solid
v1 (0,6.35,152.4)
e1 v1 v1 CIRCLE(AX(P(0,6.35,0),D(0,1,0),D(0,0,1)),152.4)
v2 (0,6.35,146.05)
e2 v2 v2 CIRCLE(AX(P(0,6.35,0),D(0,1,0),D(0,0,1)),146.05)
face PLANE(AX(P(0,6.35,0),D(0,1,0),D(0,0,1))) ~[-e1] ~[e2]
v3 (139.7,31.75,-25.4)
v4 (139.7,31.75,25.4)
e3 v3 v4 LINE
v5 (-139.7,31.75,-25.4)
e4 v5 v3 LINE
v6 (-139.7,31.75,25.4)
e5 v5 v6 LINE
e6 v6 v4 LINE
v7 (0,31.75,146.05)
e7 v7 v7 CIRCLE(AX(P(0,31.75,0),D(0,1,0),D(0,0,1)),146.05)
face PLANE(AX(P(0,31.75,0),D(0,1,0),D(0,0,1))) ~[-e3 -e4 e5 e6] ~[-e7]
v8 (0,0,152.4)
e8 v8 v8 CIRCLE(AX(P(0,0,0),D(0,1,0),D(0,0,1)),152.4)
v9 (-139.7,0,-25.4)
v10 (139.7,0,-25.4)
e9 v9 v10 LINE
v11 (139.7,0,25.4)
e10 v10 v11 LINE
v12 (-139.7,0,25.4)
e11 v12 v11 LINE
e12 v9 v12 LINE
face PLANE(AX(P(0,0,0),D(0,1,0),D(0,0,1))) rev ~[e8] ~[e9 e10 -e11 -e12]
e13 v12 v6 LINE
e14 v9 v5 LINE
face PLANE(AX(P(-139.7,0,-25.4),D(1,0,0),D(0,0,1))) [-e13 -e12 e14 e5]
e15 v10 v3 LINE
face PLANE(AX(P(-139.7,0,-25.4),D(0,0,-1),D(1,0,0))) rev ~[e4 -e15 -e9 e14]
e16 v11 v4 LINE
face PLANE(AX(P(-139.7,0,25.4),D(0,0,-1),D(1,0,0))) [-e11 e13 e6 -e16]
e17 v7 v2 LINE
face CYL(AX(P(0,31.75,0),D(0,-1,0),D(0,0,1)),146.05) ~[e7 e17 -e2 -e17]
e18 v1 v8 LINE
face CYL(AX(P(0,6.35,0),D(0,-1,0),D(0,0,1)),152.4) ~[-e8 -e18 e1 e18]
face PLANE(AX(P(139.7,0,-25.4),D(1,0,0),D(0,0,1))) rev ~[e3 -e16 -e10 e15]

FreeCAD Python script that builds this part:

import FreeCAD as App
import Part
import Sketcher
Q = App.Units.Quantity

doc = App.newDocument("Part")
params = doc.addObject("Spreadsheet::Sheet", "Params")
for row, (alias, value) in enumerate([
    ("sketch1_width", "1 in"),
    ("sketch1_height", "6 in"),
    ("sketch1_width2", "1.25 in"),
    ("revolution_angle", "360 deg"),
    ("sketch2_width", "11 in"),
    ("sketch2_height", "2 in"),
], start=1):
    params.set(f"A{row}", alias)
    params.set(f"B{row}", "=" + value)
    params.setAlias(f"B{row}", alias)

body = doc.addObject("PartDesign::Body", "Body")

# Sketch on YZ plane
sketch1 = doc.addObject("Sketcher::SketchObject", "Sketch")
body.addObject(sketch1)
sketch1.AttachmentSupport = (doc.YZ_Plane, [""])
sketch1.MapMode = "FlatFace"
sketch1.addGeometry([
    Part.LineSegment(App.Vector(0, 152, 0), App.Vector(0, 0, 0)),  # 0
    Part.LineSegment(App.Vector(0, 0, 0), App.Vector(32, 0, 0)),  # 1
    Part.LineSegment(App.Vector(32, 0, 0), App.Vector(32, 146, 0)),  # 2
    Part.LineSegment(App.Vector(32, 146, 0), App.Vector(6, 146, 0)),  # 3
    Part.LineSegment(App.Vector(6, 146, 0), App.Vector(6, 152, 0)),  # 4
    Part.LineSegment(App.Vector(6, 152, 0), App.Vector(0, 152, 0)),  # 5
], False)
sketch1.addConstraint([
    Sketcher.Constraint("Coincident", 0, 2, 1, 1),
    Sketcher.Constraint("Coincident", 1, 2, 2, 1),
    Sketcher.Constraint("Coincident", 2, 2, 3, 1),
    Sketcher.Constraint("Coincident", 3, 2, 4, 1),
    Sketcher.Constraint("Coincident", 4, 2, 5, 1),
    Sketcher.Constraint("Coincident", 5, 2, 0, 1),
    Sketcher.Constraint("Vertical", 0),
    Sketcher.Constraint("Horizontal", 1),
    Sketcher.Constraint("Vertical", 2),
    Sketcher.Constraint("Horizontal", 3),
    Sketcher.Constraint("Vertical", 4),
    Sketcher.Constraint("Horizontal", 5),
    Sketcher.Constraint("Coincident", 0, 2, -1, 1),
    Sketcher.Constraint("Equal", 5, 4),
    Sketcher.Constraint("DistanceX", 3, 2, 3, 1, Q("1 in")),
    Sketcher.Constraint("DistanceY", 0, 2, 0, 1, Q("6 in")),
    Sketcher.Constraint("DistanceX", 1, 1, 1, 2, Q("1.25 in")),
])
sketch1.setExpression("Constraints[14]", "Params.sketch1_width")
sketch1.setExpression("Constraints[15]", "Params.sketch1_height")
sketch1.setExpression("Constraints[16]", "Params.sketch1_width2")
revolution = doc.addObject("PartDesign::Revolution", "Revolution")
body.addObject(revolution)
revolution.Profile = sketch1
revolution.ReferenceAxis = (sketch1, ["H_Axis"])
revolution.setExpression("Angle", "Params.revolution_angle")

# Sketch on XZ plane
sketch2 = doc.addObject("Sketcher::SketchObject", "Sketch001")
body.addObject(sketch2)
sketch2.AttachmentSupport = (doc.XZ_Plane, [""])
sketch2.MapMode = "FlatFace"
sketch2.addGeometry([
    Part.LineSegment(App.Vector(-140, 25, 0), App.Vector(-140, -25, 0)),
    Part.LineSegment(App.Vector(-140, -25, 0), App.Vector(140, -25, 0)),
    Part.LineSegment(App.Vector(140, -25, 0), App.Vector(140, 25, 0)),
    Part.LineSegment(App.Vector(140, 25, 0), App.Vector(-140, 25, 0)),
], False)
sketch2.addConstraint([
    Sketcher.Constraint("Coincident", 0, 2, 1, 1),
    Sketcher.Constraint("Coincident", 1, 2, 2, 1),
    Sketcher.Constraint("Coincident", 2, 2, 3, 1),
    Sketcher.Constraint("Coincident", 3, 2, 0, 1),
    Sketcher.Constraint("Vertical", 0),
    Sketcher.Constraint("Horizontal", 1),
    Sketcher.Constraint("Vertical", 2),
    Sketcher.Constraint("Horizontal", 3),
    Sketcher.Constraint("Symmetric", 0, 2, 2, 2, -1, 1),
    Sketcher.Constraint("DistanceX", 1, 1, 1, 2, Q("11 in")),
    Sketcher.Constraint("DistanceY", 0, 2, 0, 1, Q("2 in")),
])
sketch2.setExpression("Constraints[9]", "Params.sketch2_width")
sketch2.setExpression("Constraints[10]", "Params.sketch2_height")
pocket1 = doc.addObject("PartDesign::Pocket", "Pocket")
body.addObject(pocket1)
pocket1.Profile = sketch2
pocket1.Type = "ThroughAll"

doc.recompute()
